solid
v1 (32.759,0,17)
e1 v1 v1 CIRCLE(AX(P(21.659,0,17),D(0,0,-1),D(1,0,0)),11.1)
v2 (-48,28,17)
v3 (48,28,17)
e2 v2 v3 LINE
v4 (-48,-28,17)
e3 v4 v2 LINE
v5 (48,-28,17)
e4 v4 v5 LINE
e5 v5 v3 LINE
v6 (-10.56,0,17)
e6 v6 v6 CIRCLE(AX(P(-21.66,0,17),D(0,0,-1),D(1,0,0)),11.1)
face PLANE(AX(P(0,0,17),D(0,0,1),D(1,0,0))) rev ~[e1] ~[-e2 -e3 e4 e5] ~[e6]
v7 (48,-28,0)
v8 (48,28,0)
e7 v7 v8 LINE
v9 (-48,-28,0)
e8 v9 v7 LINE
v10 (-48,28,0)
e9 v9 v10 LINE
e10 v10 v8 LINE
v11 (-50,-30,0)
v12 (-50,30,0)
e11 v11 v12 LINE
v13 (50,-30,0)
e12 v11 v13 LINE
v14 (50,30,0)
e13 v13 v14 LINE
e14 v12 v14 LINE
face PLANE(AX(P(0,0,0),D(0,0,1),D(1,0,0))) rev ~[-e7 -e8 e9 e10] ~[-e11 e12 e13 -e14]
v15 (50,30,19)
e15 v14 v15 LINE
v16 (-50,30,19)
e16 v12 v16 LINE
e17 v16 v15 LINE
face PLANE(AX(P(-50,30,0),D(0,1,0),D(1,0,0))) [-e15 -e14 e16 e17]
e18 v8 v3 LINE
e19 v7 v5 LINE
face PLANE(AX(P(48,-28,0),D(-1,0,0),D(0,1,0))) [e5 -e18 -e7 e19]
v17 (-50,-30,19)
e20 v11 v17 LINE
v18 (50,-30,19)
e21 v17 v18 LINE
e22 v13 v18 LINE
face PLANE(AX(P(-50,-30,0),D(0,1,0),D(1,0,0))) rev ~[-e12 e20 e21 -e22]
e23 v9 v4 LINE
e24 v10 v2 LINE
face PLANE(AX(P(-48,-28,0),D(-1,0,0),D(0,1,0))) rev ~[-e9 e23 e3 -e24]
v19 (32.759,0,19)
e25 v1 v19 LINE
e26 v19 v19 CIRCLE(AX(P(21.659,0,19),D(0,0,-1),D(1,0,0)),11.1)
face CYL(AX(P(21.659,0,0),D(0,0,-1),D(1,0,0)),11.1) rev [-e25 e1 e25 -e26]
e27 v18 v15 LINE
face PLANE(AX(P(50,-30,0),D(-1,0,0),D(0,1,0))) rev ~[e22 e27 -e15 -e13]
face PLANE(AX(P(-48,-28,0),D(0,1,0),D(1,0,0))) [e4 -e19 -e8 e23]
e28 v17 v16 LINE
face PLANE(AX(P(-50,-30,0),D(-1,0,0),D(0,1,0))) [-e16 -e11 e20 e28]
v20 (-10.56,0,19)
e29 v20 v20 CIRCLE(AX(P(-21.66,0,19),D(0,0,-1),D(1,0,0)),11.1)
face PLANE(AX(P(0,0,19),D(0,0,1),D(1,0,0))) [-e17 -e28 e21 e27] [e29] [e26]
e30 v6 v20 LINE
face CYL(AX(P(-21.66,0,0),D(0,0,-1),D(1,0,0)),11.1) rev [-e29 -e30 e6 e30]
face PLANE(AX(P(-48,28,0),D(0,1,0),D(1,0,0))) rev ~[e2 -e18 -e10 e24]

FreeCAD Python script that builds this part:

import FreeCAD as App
import Part
import Sketcher

V = App.Vector

doc = App.newDocument("Part")
body = doc.addObject("PartDesign::Body", "Body")

# Sketch on XY plane
sketch1 = body.newObject("Sketcher::SketchObject", "Sketch")
sketch1.AttachmentSupport = (doc.getObject("XY_Plane"), [""])
sketch1.MapMode = "FlatFace"
sketch1.addGeometry([
    Part.LineSegment(V(-50, 30, 0), V(-50, -30, 0)),
    Part.LineSegment(V(-50, -30, 0), V(50, -30, 0)),
    Part.LineSegment(V(50, -30, 0), V(50, 30, 0)),
    Part.LineSegment(V(50, 30, 0), V(-50, 30, 0)),
], False)
sketch1.addConstraint([
    Sketcher.Constraint("Coincident", 0, 2, 1, 1),
    Sketcher.Constraint("Coincident", 1, 2, 2, 1),
    Sketcher.Constraint("Coincident", 2, 2, 3, 1),
    Sketcher.Constraint("Coincident", 3, 2, 0, 1),
    Sketcher.Constraint("Vertical", 0),
    Sketcher.Constraint("Horizontal", 1),
    Sketcher.Constraint("Vertical", 2),
    Sketcher.Constraint("Horizontal", 3),
    Sketcher.Constraint("Symmetric", 0, 2, 2, 2, -1, 1),
    Sketcher.Constraint("DistanceX", 1, 1, 1, 2, 100.0),
    Sketcher.Constraint("DistanceY", 0, 2, 0, 1, 60.0),
])
pad1 = body.newObject("PartDesign::Pad", "Pad")
pad1.Profile = sketch1
pad1.Length = 19

# Sketch on XY plane
sketch2 = body.newObject("Sketcher::SketchObject", "Sketch001")
sketch2.AttachmentSupport = (doc.getObject("XY_Plane"), [""])
sketch2.MapMode = "FlatFace"
sketch2.addGeometry([
    Part.LineSegment(V(-48, 28, 0), V(-48, -28, 0)),
    Part.LineSegment(V(-48, -28, 0), V(48, -28, 0)),
    Part.LineSegment(V(48, -28, 0), V(48, 28, 0)),
    Part.LineSegment(V(48, 28, 0), V(-48, 28, 0)),
], False)
sketch2.addConstraint([
    Sketcher.Constraint("Coincident", 0, 2, 1, 1),
    Sketcher.Constraint("Coincident", 1, 2, 2, 1),
    Sketcher.Constraint("Coincident", 2, 2, 3, 1),
    Sketcher.Constraint("Coincident", 3, 2, 0, 1),
    Sketcher.Constraint("Vertical", 0),
    Sketcher.Constraint("Horizontal", 1),
    Sketcher.Constraint("Vertical", 2),
    Sketcher.Constraint("Horizontal", 3),
    Sketcher.Constraint("Symmetric", 0, 2, 2, 2, -1, 1),
    Sketcher.Constraint("DistanceX", 1, 1, 1, 2, 96.0),
    Sketcher.Constraint("DistanceY", 0, 2, 0, 1, 56.0),
])
pocket1 = body.newObject("PartDesign::Pocket", "Pocket")
pocket1.Profile = sketch2
pocket1.Length = 17
pocket1.Reversed = True

# Sketch on XY plane
sketch3 = body.newObject("Sketcher::SketchObject", "Sketch002")
sketch3.AttachmentSupport = (doc.getObject("XY_Plane"), [""])
sketch3.MapMode = "FlatFace"
sketch3.addGeometry(Part.Circle(V(-21.66, 0, 0), V(0, 0, 1), 11.1), False)
sketch3.addConstraint([
    Sketcher.Constraint("PointOnObject", 0, 3, -1),
    Sketcher.Constraint("Diameter", 0, 22.2),
    Sketcher.Constraint("DistanceX", 0, 3, -1, 1, 21.66),
])
pocket2 = body.newObject("PartDesign::Pocket", "Pocket001")
pocket2.Profile = sketch3
pocket2.Length = 20
pocket2.Reversed = True

# Sketch on XY plane
sketch4 = body.newObject("Sketcher::SketchObject", "Sketch003")
sketch4.AttachmentSupport = (doc.getObject("XY_Plane"), [""])
sketch4.MapMode = "FlatFace"
sketch4.addGeometry(Part.Circle(V(21.659, 0, 0), V(0, 0, 1), 11.1), False)
sketch4.addConstraint([
    Sketcher.Constraint("PointOnObject", 0, 3, -1),
    Sketcher.Constraint("Diameter", 0, 22.2),
    Sketcher.Constraint("DistanceX", -1, 1, 0, 3, 21.659),
])
pocket3 = body.newObject("PartDesign::Pocket", "Pocket002")
pocket3.Profile = sketch4
pocket3.Length = 20
pocket3.Reversed = True

doc.recompute()
